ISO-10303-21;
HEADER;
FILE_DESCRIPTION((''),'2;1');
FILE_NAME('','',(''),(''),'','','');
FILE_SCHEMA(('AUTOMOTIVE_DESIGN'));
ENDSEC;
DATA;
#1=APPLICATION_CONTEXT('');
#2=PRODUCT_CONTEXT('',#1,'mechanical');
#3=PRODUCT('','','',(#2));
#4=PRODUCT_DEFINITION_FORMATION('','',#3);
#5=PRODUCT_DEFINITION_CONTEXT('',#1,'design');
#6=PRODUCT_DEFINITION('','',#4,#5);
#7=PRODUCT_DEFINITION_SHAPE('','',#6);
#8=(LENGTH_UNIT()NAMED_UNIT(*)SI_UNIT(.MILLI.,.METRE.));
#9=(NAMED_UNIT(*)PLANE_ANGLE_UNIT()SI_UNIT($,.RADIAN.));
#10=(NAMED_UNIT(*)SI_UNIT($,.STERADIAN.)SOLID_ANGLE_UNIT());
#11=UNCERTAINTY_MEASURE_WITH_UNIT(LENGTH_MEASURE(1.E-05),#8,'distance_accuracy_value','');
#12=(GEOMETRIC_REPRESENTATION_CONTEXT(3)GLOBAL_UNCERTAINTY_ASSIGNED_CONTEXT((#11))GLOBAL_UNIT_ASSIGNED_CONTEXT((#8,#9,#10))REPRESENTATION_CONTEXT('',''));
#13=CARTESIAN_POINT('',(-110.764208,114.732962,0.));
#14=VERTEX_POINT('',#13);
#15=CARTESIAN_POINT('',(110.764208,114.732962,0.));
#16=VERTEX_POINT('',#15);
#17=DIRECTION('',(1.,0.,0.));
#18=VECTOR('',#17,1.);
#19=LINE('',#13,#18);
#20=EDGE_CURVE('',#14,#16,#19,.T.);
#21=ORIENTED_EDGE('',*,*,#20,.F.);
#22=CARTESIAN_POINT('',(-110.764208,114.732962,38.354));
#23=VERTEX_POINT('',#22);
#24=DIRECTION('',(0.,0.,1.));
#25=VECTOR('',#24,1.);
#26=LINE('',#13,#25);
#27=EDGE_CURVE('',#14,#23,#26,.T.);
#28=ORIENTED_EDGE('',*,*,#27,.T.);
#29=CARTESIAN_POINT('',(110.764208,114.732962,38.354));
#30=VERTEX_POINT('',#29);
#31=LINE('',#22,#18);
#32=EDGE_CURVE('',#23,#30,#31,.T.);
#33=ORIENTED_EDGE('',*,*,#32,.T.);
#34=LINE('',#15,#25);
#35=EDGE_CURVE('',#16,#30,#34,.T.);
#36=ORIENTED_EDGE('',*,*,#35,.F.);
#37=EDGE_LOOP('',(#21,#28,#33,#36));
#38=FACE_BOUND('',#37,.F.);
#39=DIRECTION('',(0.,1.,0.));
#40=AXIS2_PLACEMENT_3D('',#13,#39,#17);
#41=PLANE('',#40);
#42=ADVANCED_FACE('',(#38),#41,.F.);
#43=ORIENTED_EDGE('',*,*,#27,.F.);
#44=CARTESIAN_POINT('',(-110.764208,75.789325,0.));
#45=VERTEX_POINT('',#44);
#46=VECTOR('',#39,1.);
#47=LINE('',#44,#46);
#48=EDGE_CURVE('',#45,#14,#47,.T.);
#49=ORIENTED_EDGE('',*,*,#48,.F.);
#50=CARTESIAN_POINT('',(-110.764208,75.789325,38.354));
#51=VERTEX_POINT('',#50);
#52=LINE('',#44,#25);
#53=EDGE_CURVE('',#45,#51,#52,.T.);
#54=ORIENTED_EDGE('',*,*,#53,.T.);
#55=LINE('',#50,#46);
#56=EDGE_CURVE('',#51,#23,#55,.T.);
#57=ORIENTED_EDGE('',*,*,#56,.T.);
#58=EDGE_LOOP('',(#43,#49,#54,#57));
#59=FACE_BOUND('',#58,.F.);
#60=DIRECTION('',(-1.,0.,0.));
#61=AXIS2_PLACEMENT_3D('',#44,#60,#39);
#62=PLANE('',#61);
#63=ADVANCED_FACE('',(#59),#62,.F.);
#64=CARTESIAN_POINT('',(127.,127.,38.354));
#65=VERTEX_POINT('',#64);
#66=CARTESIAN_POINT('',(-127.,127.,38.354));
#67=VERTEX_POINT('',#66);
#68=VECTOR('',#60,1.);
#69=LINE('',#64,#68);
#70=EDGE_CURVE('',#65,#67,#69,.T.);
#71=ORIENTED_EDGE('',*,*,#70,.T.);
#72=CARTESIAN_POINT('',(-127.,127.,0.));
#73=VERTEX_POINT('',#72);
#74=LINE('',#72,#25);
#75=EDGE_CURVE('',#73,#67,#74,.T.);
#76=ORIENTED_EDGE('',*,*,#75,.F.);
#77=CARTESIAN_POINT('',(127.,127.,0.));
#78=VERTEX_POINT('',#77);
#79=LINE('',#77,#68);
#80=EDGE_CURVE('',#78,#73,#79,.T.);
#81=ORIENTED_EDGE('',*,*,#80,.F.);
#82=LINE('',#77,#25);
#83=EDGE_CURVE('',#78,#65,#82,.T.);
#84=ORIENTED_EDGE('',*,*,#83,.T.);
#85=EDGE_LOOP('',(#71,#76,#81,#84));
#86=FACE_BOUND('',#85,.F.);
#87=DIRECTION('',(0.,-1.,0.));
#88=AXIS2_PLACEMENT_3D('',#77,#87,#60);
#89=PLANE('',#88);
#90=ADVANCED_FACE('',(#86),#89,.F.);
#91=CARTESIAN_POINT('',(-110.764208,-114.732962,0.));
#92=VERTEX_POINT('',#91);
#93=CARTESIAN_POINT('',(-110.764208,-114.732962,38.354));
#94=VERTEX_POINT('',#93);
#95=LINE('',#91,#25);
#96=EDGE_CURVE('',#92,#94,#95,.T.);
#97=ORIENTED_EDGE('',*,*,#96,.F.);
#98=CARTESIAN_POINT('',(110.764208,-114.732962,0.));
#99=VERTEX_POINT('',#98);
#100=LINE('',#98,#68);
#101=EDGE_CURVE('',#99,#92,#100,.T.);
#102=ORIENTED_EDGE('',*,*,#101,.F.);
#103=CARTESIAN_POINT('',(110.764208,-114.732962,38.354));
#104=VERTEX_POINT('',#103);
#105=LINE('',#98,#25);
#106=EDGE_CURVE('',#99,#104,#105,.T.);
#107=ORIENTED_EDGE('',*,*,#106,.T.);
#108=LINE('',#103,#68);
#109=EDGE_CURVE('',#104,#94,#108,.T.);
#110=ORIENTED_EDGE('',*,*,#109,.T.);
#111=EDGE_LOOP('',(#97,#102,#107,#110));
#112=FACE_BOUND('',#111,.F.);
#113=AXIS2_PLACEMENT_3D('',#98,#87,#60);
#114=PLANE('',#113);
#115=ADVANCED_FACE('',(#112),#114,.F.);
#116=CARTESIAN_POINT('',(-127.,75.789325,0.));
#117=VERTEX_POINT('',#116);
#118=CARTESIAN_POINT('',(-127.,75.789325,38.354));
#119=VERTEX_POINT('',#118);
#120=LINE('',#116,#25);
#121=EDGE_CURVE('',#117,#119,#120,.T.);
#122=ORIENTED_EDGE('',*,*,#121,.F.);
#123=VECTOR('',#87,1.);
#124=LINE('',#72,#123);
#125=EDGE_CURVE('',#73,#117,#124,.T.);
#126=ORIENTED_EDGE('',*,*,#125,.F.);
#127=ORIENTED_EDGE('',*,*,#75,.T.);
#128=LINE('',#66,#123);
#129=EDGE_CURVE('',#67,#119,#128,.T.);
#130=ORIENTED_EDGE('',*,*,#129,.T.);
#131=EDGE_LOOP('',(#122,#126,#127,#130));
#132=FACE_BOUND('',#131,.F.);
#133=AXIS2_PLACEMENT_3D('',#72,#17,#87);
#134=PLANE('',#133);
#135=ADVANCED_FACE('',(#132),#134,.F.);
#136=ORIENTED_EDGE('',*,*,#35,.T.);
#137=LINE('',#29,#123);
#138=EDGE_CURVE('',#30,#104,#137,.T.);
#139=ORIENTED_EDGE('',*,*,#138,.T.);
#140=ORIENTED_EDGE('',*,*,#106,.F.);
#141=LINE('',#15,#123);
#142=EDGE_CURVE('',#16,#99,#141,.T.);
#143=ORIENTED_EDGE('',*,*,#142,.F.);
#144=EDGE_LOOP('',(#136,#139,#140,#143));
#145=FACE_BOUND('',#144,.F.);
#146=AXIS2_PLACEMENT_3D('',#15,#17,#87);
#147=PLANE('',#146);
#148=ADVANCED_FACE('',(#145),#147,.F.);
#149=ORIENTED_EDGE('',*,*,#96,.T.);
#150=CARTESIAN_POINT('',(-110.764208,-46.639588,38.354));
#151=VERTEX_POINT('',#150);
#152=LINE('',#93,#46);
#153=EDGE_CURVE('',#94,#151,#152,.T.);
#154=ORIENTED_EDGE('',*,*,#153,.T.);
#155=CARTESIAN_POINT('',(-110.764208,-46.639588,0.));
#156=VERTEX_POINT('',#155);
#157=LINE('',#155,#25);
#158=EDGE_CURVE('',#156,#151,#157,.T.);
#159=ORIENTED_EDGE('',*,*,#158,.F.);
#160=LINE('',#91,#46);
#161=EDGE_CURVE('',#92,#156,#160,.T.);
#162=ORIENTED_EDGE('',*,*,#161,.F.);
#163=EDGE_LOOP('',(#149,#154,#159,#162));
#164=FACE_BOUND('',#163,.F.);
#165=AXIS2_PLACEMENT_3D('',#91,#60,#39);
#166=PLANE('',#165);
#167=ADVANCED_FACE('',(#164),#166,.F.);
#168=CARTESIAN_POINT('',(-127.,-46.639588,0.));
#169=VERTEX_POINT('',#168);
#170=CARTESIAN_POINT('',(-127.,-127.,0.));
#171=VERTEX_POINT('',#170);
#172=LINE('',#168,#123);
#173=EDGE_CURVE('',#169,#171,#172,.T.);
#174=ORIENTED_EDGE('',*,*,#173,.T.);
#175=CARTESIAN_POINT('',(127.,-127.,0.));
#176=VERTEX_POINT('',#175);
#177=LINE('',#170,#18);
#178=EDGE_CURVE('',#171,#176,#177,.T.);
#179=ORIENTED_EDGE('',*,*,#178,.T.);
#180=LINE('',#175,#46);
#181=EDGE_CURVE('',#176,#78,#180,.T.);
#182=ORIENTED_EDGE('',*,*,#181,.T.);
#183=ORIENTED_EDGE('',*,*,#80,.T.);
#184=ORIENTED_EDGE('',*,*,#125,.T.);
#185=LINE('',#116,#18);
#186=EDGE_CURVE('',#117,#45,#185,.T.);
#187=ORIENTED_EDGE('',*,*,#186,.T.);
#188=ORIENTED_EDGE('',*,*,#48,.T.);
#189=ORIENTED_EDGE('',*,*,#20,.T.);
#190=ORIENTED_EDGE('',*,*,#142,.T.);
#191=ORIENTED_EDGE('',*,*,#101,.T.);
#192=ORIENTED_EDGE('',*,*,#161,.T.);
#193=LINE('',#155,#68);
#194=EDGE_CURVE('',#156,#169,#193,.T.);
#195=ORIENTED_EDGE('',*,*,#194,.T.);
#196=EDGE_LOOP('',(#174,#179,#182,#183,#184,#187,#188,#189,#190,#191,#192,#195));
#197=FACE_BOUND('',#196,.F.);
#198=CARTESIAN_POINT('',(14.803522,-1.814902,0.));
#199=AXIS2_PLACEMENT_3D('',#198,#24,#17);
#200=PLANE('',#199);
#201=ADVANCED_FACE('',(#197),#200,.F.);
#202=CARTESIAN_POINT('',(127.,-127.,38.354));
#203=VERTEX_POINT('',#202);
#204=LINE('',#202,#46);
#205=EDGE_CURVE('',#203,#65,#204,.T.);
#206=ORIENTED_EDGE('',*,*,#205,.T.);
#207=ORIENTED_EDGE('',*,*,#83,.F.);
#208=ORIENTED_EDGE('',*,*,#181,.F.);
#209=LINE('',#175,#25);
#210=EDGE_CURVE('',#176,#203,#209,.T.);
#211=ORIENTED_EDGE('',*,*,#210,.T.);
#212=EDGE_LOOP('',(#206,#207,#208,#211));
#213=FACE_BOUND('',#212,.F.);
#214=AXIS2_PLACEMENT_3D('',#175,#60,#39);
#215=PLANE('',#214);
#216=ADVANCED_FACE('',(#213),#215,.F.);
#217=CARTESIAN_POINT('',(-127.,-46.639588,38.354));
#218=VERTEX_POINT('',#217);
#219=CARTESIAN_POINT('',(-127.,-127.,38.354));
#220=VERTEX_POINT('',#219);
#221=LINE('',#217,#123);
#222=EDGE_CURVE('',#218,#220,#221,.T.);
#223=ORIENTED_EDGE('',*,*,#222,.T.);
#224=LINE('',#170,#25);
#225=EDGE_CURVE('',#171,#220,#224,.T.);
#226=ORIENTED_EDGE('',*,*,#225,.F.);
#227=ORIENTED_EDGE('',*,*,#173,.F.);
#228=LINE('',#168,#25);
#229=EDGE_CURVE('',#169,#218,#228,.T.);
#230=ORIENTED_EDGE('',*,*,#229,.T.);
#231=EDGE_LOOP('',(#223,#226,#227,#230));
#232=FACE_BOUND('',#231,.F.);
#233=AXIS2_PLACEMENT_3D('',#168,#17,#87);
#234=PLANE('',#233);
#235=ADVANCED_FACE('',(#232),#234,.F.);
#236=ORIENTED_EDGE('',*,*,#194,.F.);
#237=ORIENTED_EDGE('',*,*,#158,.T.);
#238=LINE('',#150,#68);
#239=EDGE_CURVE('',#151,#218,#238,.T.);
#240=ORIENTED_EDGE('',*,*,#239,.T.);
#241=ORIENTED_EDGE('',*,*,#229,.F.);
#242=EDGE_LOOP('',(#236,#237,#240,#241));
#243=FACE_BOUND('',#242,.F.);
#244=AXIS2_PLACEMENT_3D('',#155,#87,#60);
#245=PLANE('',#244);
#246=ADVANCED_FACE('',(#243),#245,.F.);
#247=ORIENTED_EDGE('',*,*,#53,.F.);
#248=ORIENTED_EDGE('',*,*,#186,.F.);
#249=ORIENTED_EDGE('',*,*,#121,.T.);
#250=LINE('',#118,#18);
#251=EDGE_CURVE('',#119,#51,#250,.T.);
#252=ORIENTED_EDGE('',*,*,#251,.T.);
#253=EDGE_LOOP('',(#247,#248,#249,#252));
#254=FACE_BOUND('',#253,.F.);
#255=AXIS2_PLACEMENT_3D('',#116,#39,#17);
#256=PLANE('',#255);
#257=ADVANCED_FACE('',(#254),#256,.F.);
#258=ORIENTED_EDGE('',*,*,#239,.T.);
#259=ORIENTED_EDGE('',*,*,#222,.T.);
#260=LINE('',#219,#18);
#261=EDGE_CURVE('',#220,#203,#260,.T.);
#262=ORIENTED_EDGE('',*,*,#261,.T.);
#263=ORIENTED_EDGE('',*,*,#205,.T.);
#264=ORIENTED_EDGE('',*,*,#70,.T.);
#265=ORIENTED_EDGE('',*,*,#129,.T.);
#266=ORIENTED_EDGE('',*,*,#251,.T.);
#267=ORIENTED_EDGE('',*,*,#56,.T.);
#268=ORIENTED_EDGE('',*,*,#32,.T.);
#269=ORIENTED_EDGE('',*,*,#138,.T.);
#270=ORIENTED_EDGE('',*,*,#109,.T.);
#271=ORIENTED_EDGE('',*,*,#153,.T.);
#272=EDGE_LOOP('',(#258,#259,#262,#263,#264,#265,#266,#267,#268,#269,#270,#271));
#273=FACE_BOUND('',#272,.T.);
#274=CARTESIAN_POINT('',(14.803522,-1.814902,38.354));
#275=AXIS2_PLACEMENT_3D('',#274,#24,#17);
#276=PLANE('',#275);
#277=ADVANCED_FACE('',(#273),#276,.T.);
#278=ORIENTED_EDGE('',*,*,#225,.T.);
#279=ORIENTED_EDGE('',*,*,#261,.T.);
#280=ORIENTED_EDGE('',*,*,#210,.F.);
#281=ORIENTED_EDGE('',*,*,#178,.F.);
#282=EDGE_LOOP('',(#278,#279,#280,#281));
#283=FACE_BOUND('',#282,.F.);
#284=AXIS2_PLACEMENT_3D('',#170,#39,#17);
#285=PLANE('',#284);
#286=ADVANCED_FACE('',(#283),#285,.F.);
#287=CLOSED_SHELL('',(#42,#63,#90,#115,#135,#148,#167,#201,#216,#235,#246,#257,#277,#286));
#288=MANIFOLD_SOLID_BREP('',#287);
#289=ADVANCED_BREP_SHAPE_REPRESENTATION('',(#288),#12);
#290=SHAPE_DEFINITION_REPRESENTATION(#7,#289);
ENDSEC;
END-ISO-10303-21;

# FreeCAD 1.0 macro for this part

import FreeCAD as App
import Part
import Sketcher
Q = App.Units.Quantity


def add_polygon(sketch, points):
    """Adds a closed chain of lines whose ends are joined by coincident constraints."""
    first, n = sketch.GeometryCount, len(points)
    for a, b in zip(points, points[1:] + points[:1]):
        sketch.addGeometry(Part.LineSegment(App.Vector(*a, 0), App.Vector(*b, 0)), False)
    for i in range(n):
        sketch.addConstraint(Sketcher.Constraint("Coincident", first + i, 2, first + (i + 1) % n, 1))

doc = App.newDocument("Part")
body = doc.addObject("PartDesign::Body", "Body")

# Sketch on XY plane
sketch1 = body.newObject("Sketcher::SketchObject", "Sketch")
sketch1.AttachmentSupport = (doc.getObject("XY_Plane"), [""])
sketch1.MapMode = "FlatFace"
add_polygon(sketch1, [(127, -127), (127, 127), (-127, 127), (-127, 75.789325), (-110.764208, 75.789325), (-110.764208, 114.732962), (110.764208, 114.732962), (110.764208, -114.732962), (-110.764208, -114.732962), (-110.764208, -46.639588), (-127, -46.639588), (-127, -127)])  # lines 0-11
sketch1.addConstraint([
    Sketcher.Constraint("Vertical", 0),
    Sketcher.Constraint("Horizontal", 1),
    Sketcher.Constraint("Vertical", 2),
    Sketcher.Constraint("Horizontal", 3),
    Sketcher.Constraint("Vertical", 4),
    Sketcher.Constraint("Horizontal", 5),
    Sketcher.Constraint("Vertical", 6),
    Sketcher.Constraint("Horizontal", 7),
    Sketcher.Constraint("Vertical", 8),
    Sketcher.Constraint("Horizontal", 9),
    Sketcher.Constraint("Vertical", 10),
    Sketcher.Constraint("Horizontal", 11),
    Sketcher.Constraint("Symmetric", 4, 2, 6, 2, -1, 1),
    Sketcher.Constraint("Symmetric", 0, 2, 10, 2, -1, 1),
    Sketcher.Constraint("Vertical", 4, 2, 7, 2),
    Sketcher.Constraint("Vertical", 2, 2, 9, 2),
    Sketcher.Constraint("Equal", 11, 0),
    Sketcher.Constraint("DistanceX", 1, 2, 1, 1, Q("10 in")),
    Sketcher.Constraint("DistanceY", 10, 2, 10, 1, Q("80.360412 mm")),
    Sketcher.Constraint("DistanceX", 3, 1, 3, 2, Q("16.235792 mm")),
    Sketcher.Constraint("DistanceY", 2, 2, 2, 1, Q("51.210675 mm")),
    Sketcher.Constraint("DistanceY", 4, 1, 4, 2, Q("38.943637 mm")),
])
pad1 = body.newObject("PartDesign::Pad", "Pad")
pad1.Profile = sketch1
pad1.Length = Q("1.51 in")

doc.recompute()
